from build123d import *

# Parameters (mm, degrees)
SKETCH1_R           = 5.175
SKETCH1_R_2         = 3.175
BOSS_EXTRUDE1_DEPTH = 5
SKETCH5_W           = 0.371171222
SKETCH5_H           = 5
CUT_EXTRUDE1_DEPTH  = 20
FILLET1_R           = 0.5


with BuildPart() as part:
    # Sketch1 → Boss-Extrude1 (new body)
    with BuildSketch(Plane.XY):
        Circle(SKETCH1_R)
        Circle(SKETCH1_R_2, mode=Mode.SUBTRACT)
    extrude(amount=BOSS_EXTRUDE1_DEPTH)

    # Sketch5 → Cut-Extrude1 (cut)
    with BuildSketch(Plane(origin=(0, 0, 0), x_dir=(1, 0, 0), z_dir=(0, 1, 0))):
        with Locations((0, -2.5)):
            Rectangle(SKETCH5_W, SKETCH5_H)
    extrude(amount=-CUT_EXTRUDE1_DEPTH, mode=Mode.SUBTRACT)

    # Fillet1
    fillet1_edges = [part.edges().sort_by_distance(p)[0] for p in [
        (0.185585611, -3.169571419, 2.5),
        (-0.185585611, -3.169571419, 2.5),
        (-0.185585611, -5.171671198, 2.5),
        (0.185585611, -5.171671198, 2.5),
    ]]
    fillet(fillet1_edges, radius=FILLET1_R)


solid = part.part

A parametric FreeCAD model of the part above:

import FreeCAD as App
import Part
import Sketcher


def edges_at(feature, points):
    """Names of the edges that pass closest to the given points."""
    edges = feature.Shape.Edges
    near = lambda p: min(range(len(edges)), key=lambda i: edges[i].distToShape(Part.Vertex(*p))[0])
    return sorted({f"Edge{near(p) + 1}" for p in points})


def add_polygon(sketch, points):
    """Adds a closed chain of lines whose ends are joined by coincident constraints."""
    first, n = sketch.GeometryCount, len(points)
    for a, b in zip(points, points[1:] + points[:1]):
        sketch.addGeometry(Part.LineSegment(App.Vector(*a, 0), App.Vector(*b, 0)), False)
    for i in range(n):
        sketch.addConstraint(Sketcher.Constraint("Coincident", first + i, 2, first + (i + 1) % n, 1))

doc = App.newDocument("Part")
body = doc.addObject("PartDesign::Body", "Body")

# Sketch on XY plane
sketch1 = body.newObject("Sketcher::SketchObject", "Sketch")
sketch1.AttachmentSupport = (doc.getObject("XY_Plane"), [""])
sketch1.MapMode = "FlatFace"
sketch1.addGeometry(Part.Circle(App.Vector(0, 0, 0), App.Vector(0, 0, 1), 5.2), False)
sketch1.addGeometry(Part.Circle(App.Vector(0, 0, 0), App.Vector(0, 0, 1), 3.2), False)
sketch1.addConstraint(Sketcher.Constraint("Coincident", 0, 3, -1, 1))
sketch1.addConstraint(Sketcher.Constraint("Coincident", 1, 3, -1, 1))
sketch1.addConstraint(Sketcher.Constraint("Diameter", 0, 10.35))
sketch1.addConstraint(Sketcher.Constraint("Diameter", 1, 6.35))
pad1 = body.newObject("PartDesign::Pad", "Pad")
pad1.Profile = sketch1
pad1.Length = 5

# Sketch on XZ plane
sketch2 = body.newObject("Sketcher::SketchObject", "Sketch001")
sketch2.AttachmentSupport = (doc.getObject("XZ_Plane"), [""])
sketch2.MapMode = "FlatFace"
add_polygon(sketch2, [(-0.19, 0), (-0.19, 5), (0.19, 5), (0.19, 0)])  # lines 0-3
sketch2.addConstraint(Sketcher.Constraint("Vertical", 0))
sketch2.addConstraint(Sketcher.Constraint("Horizontal", 1))
sketch2.addConstraint(Sketcher.Constraint("Vertical", 2))
sketch2.addConstraint(Sketcher.Constraint("Horizontal", 3))
sketch2.addConstraint(Sketcher.Constraint("Symmetric", 2, 2, 3, 2, -1, 1))
sketch2.addConstraint(Sketcher.Constraint("DistanceY", 0, 1, 0, 2, 5.0))
sketch2.addConstraint(Sketcher.Constraint("DistanceX", 1, 1, 1, 2, 0.371171))
pocket1 = body.newObject("PartDesign::Pocket", "Pocket")
pocket1.Profile = sketch2
pocket1.Length = 20
pocket1.Reversed = True
doc.recompute()

fillet = body.newObject("PartDesign::Fillet", "Fillet")
fillet.Base = (pocket1, edges_at(pocket1, [
    (0.186, -3.17, 2.5),
    (-0.186, -3.17, 2.5),
    (-0.186, -5.172, 2.5),
    (0.186, -5.172, 2.5),
]))
fillet.Radius = 0.5

doc.recompute()
